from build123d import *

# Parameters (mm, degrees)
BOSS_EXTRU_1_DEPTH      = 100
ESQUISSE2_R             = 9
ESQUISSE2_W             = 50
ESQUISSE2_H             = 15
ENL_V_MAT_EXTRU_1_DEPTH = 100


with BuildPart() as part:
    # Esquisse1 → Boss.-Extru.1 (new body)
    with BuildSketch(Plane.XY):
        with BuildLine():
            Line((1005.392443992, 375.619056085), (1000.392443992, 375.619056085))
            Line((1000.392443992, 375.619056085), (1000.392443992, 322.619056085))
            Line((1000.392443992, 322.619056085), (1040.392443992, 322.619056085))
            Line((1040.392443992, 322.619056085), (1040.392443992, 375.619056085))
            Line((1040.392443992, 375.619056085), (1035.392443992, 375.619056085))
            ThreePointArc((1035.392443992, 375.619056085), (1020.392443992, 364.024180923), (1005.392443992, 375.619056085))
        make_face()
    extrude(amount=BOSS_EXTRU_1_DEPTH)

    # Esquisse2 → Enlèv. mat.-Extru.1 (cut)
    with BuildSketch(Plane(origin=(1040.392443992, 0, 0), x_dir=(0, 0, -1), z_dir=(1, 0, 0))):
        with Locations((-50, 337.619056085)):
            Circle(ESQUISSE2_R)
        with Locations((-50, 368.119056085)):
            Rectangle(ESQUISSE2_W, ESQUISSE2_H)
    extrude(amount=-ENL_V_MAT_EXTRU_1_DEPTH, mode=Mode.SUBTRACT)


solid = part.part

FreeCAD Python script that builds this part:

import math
import FreeCAD as App
import Part
import Sketcher

V = App.Vector


def add_polygon(sketch, points):
    """Adds a closed chain of lines whose ends are joined by coincident constraints."""
    first, n = sketch.GeometryCount, len(points)
    for a, b in zip(points, points[1:] + points[:1]):
        sketch.addGeometry(Part.LineSegment(App.Vector(*a, 0), App.Vector(*b, 0)), False)
    for i in range(n):
        sketch.addConstraint(Sketcher.Constraint("Coincident", first + i, 2, first + (i + 1) % n, 1))

doc = App.newDocument("Part")
body = doc.addObject("PartDesign::Body", "Body")

sketch1 = body.newObject("Sketcher::SketchObject", "Sketch")
sketch1.AttachmentSupport = (doc.getObject("XY_Plane"), [""])
sketch1.MapMode = "FlatFace"
sketch1.addGeometry([
    Part.LineSegment(V(1005, 376, 0), V(1000, 376, 0)),
    Part.LineSegment(V(1000, 376, 0), V(1000, 323, 0)),
    Part.LineSegment(V(1000, 323, 0), V(1040, 323, 0)),
    Part.LineSegment(V(1040, 323, 0), V(1040, 376, 0)),
    Part.LineSegment(V(1040, 376, 0), V(1035, 376, 0)),
    Part.ArcOfCircle(Part.Circle(V(1020, 380, 0), V(0, 0, 1), 16), math.radians(-165), math.radians(-15)),
], False)
sketch1.addConstraint([
    Sketcher.Constraint("Coincident", 0, 2, 1, 1),
    Sketcher.Constraint("Coincident", 1, 2, 2, 1),
    Sketcher.Constraint("Coincident", 2, 2, 3, 1),
    Sketcher.Constraint("Coincident", 3, 2, 4, 1),
    Sketcher.Constraint("Coincident", 4, 2, 5, 2),
    Sketcher.Constraint("Coincident", 5, 1, 0, 1),
    Sketcher.Constraint("Horizontal", 0),
    Sketcher.Constraint("Vertical", 1),
    Sketcher.Constraint("Horizontal", 2),
    Sketcher.Constraint("Vertical", 3),
    Sketcher.Constraint("Horizontal", 4),
    Sketcher.Constraint("Horizontal", 0, 2, 3, 2),
    Sketcher.Constraint("Equal", 0, 4),
    Sketcher.Constraint("Radius", 5, 15.5),
    Sketcher.Constraint("DistanceX", 0, 2, 0, 1, 5.0),
    Sketcher.Constraint("DistanceX", 2, 1, 2, 2, 40.0),
    Sketcher.Constraint("DistanceY", 1, 2, 1, 1, 53.0),
    Sketcher.Constraint("DistanceY", -1, 1, 5, 3, 379.524181),
    Sketcher.Constraint("DistanceX", -1, 1, 5, 3, 1020.392444),
])
pad1 = body.newObject("PartDesign::Pad", "Pad")
pad1.Profile = sketch1
pad1.Length = 100

sketch2 = body.newObject("Sketcher::SketchObject", "Sketch001")
sketch2.AttachmentSupport = (doc.getObject("YZ_Plane"), [""])
sketch2.MapMode = "FlatFace"
sketch2.AttachmentOffset = App.Placement(V(0, 0, 1040.392444), App.Rotation())
sketch2.addGeometry(Part.Circle(V(338, 50, 0), V(0, 0, 1), 9), False)
add_polygon(sketch2, [(376, 75), (361, 75), (361, 25), (376, 25)])
sketch2.addConstraint([
    Sketcher.Constraint("Horizontal", 1),
    Sketcher.Constraint("Vertical", 2),
    Sketcher.Constraint("Horizontal", 3),
    Sketcher.Constraint("Vertical", 4),
    Sketcher.Constraint("Diameter", 0, 18.0),
    Sketcher.Constraint("DistanceX", 1, 2, 1, 1, 15.0),
    Sketcher.Constraint("DistanceY", 2, 2, 2, 1, 50.0),
    Sketcher.Constraint("DistanceY", -1, 1, 0, 3, 50.0),
    Sketcher.Constraint("DistanceY", -1, 1, 1, 2, 75.0),
    Sketcher.Constraint("DistanceX", 0, 3, 1, 2, 23.0),
    Sketcher.Constraint("DistanceX", -1, 1, 0, 3, 337.619056),
])
pocket1 = body.newObject("PartDesign::Pocket", "Pocket")
pocket1.Profile = sketch2
pocket1.Length = 100

doc.recompute()
